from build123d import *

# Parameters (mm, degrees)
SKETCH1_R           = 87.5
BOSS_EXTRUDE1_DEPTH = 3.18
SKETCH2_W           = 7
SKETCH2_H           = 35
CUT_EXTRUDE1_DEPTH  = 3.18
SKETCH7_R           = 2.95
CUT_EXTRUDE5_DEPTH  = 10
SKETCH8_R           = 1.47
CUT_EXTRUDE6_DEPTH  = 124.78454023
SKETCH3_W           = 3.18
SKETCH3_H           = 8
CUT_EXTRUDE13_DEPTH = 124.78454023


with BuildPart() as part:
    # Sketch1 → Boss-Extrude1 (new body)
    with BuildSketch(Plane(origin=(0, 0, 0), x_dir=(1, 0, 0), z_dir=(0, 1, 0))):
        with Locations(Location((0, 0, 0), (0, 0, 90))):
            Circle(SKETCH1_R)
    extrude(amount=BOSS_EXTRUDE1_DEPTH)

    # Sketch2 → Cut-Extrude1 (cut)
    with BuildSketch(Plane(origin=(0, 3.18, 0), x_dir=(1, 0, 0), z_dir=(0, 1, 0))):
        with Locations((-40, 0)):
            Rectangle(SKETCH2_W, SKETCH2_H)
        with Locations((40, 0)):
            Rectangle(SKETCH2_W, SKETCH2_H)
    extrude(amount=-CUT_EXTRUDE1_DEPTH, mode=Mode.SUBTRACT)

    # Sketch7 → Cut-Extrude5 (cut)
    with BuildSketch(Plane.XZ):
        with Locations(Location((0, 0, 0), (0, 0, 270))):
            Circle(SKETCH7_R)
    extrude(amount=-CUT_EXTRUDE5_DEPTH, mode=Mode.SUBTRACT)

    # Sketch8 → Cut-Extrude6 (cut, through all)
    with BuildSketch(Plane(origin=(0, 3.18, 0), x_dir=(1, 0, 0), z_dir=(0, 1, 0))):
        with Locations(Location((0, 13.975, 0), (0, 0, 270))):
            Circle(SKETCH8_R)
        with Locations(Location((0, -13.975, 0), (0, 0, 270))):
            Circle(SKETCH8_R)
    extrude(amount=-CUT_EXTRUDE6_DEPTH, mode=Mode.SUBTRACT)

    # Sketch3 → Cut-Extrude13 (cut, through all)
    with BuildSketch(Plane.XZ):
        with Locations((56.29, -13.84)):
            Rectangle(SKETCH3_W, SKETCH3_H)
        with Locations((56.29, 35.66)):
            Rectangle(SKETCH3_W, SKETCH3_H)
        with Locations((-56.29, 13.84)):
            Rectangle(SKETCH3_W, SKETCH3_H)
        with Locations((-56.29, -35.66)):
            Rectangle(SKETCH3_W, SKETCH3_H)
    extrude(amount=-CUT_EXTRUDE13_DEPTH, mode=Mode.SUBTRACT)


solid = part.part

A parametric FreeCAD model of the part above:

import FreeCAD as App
import Part
import Sketcher
Q = App.Units.Quantity


def add_polygon(sketch, points):
    """Adds a closed chain of lines whose ends are joined by coincident constraints."""
    first, n = sketch.GeometryCount, len(points)
    for a, b in zip(points, points[1:] + points[:1]):
        sketch.addGeometry(Part.LineSegment(App.Vector(*a, 0), App.Vector(*b, 0)), False)
    for i in range(n):
        sketch.addConstraint(Sketcher.Constraint("Coincident", first + i, 2, first + (i + 1) % n, 1))

doc = App.newDocument("Part")
params = doc.addObject("Spreadsheet::Sheet", "Params")
for row, (alias, value) in enumerate([
    ("sketch1_diameter", "175 mm"),
    ("pad1_length", "3.18 mm"),
    ("sketch2_width", "7 mm"),
    ("sketch2_height", "35 mm"),
    ("pocket1_length", "3.18 mm"),
    ("sketch3_diameter", "5.9 mm"),
    ("pocket2_length", "10 mm"),
    ("sketch4_diameter", "2.94 mm"),
    ("sketch5_height", "8 mm"),
    ("sketch5_width", "3.18 mm"),
], start=1):
    params.set(f"A{row}", alias)
    params.set(f"B{row}", "=" + value)
    params.setAlias(f"B{row}", alias)

body = doc.addObject("PartDesign::Body", "Body")

sketch1 = doc.addObject("Sketcher::SketchObject", "Sketch")
body.addObject(sketch1)
sketch1.AttachmentSupport = (doc.XZ_Plane, [""])
sketch1.MapMode = "FlatFace"
sketch1.addGeometry(Part.Circle(App.Vector(0, 0, 0), App.Vector(0, 0, 1), 88), False)
sketch1.addConstraint(Sketcher.Constraint("Coincident", 0, 3, -1, 1))
sketch1.addConstraint(Sketcher.Constraint("Diameter", 0, Q("175 mm")))
sketch1.setExpression("Constraints[1]", "Params.sketch1_diameter")
pad1 = doc.addObject("PartDesign::Pad", "Pad")
body.addObject(pad1)
pad1.Profile = sketch1
pad1.setExpression("Length", "Params.pad1_length")
pad1.Reversed = True

sketch2 = doc.addObject("Sketcher::SketchObject", "Sketch001")
body.addObject(sketch2)
sketch2.AttachmentSupport = (doc.XZ_Plane, [""])
sketch2.MapMode = "FlatFace"
sketch2.AttachmentOffset = App.Placement(App.Vector(0, 0, -3.18), App.Rotation())
add_polygon(sketch2, [(-44, -18), (-44, 18), (-36, 18), (-36, -18)])
add_polygon(sketch2, [(36, -18), (36, 18), (44, 18), (44, -18)])
sketch2.addConstraint(Sketcher.Constraint("Vertical", 0))
sketch2.addConstraint(Sketcher.Constraint("Horizontal", 1))
sketch2.addConstraint(Sketcher.Constraint("Vertical", 2))
sketch2.addConstraint(Sketcher.Constraint("Horizontal", 3))
sketch2.addConstraint(Sketcher.Constraint("Vertical", 4))
sketch2.addConstraint(Sketcher.Constraint("Horizontal", 5))
sketch2.addConstraint(Sketcher.Constraint("Vertical", 6))
sketch2.addConstraint(Sketcher.Constraint("Horizontal", 7))
sketch2.addConstraint(Sketcher.Constraint("Symmetric", 2, 2, 4, 2, -1, 1))
sketch2.addConstraint(Sketcher.Constraint("Symmetric", 0, 2, 6, 2, -1, 1))
sketch2.addConstraint(Sketcher.Constraint("Horizontal", 1, 2, 4, 2))
sketch2.addConstraint(Sketcher.Constraint("DistanceX", 1, 1, 1, 2, Q("7 mm")))
sketch2.addConstraint(Sketcher.Constraint("DistanceY", 0, 1, 0, 2, Q("35 mm")))
sketch2.addConstraint(Sketcher.Constraint("DistanceX", 1, 2, 4, 2, Q("73 mm")))
sketch2.setExpression("Constraints[19]", "Params.sketch2_width")
sketch2.setExpression("Constraints[20]", "Params.sketch2_height")
pocket1 = doc.addObject("PartDesign::Pocket", "Pocket")
body.addObject(pocket1)
pocket1.Profile = sketch2
pocket1.setExpression("Length", "Params.pocket1_length")
pocket1.Reversed = True

sketch3 = doc.addObject("Sketcher::SketchObject", "Sketch002")
body.addObject(sketch3)
sketch3.AttachmentSupport = (doc.XZ_Plane, [""])
sketch3.MapMode = "FlatFace"
sketch3.addGeometry(Part.Circle(App.Vector(0, 0, 0), App.Vector(0, 0, 1), 3), False)
sketch3.addConstraint(Sketcher.Constraint("Coincident", 0, 3, -1, 1))
sketch3.addConstraint(Sketcher.Constraint("Diameter", 0, Q("5.9 mm")))
sketch3.setExpression("Constraints[1]", "Params.sketch3_diameter")
pocket2 = doc.addObject("PartDesign::Pocket", "Pocket001")
body.addObject(pocket2)
pocket2.Profile = sketch3
pocket2.setExpression("Length", "Params.pocket2_length")

sketch4 = doc.addObject("Sketcher::SketchObject", "Sketch003")
body.addObject(sketch4)
sketch4.AttachmentSupport = (doc.XZ_Plane, [""])
sketch4.MapMode = "FlatFace"
sketch4.AttachmentOffset = App.Placement(App.Vector(0, 0, -3.18), App.Rotation())
sketch4.addGeometry(Part.Circle(App.Vector(0, -14, 0), App.Vector(0, 0, 1), 1.5), False)
sketch4.addGeometry(Part.Circle(App.Vector(0, 14, 0), App.Vector(0, 0, 1), 1.5), False)
sketch4.addConstraint(Sketcher.Constraint("Equal", 0, 1))
sketch4.addConstraint(Sketcher.Constraint("Symmetric", 0, 3, 1, 3, -1, 1))
sketch4.addConstraint(Sketcher.Constraint("PointOnObject", 0, 3, -2))
sketch4.addConstraint(Sketcher.Constraint("Diameter", 0, Q("2.94 mm")))
sketch4.addConstraint(Sketcher.Constraint("DistanceY", 0, 3, 1, 3, Q("27.95 mm")))
sketch4.setExpression("Constraints[3]", "Params.sketch4_diameter")
pocket3 = doc.addObject("PartDesign::Pocket", "Pocket002")
body.addObject(pocket3)
pocket3.Profile = sketch4
pocket3.Type = "ThroughAll"
pocket3.Reversed = True

sketch5 = doc.addObject("Sketcher::SketchObject", "Sketch004")
body.addObject(sketch5)
sketch5.AttachmentSupport = (doc.XZ_Plane, [""])
sketch5.MapMode = "FlatFace"
add_polygon(sketch5, [(54.7, -9.8), (54.7, -17.8), (57.9, -17.8), (57.9, -9.8)])
add_polygon(sketch5, [(54.7, 39.7), (54.7, 31.7), (57.9, 31.7), (57.9, 39.7)])
add_polygon(sketch5, [(-57.9, 17.8), (-57.9, 9.8), (-54.7, 9.8), (-54.7, 17.8)])
add_polygon(sketch5, [(-57.9, -31.7), (-57.9, -39.7), (-54.7, -39.7), (-54.7, -31.7)])
sketch5.addConstraint(Sketcher.Constraint("Vertical", 0))
sketch5.addConstraint(Sketcher.Constraint("Horizontal", 1))
sketch5.addConstraint(Sketcher.Constraint("Vertical", 2))
sketch5.addConstraint(Sketcher.Constraint("Horizontal", 3))
sketch5.addConstraint(Sketcher.Constraint("Vertical", 4))
sketch5.addConstraint(Sketcher.Constraint("Horizontal", 5))
sketch5.addConstraint(Sketcher.Constraint("Vertical", 6))
sketch5.addConstraint(Sketcher.Constraint("Horizontal", 7))
sketch5.addConstraint(Sketcher.Constraint("Vertical", 8))
sketch5.addConstraint(Sketcher.Constraint("Horizontal", 9))
sketch5.addConstraint(Sketcher.Constraint("Vertical", 10))
sketch5.addConstraint(Sketcher.Constraint("Horizontal", 11))
sketch5.addConstraint(Sketcher.Constraint("Vertical", 12))
sketch5.addConstraint(Sketcher.Constraint("Horizontal", 13))
sketch5.addConstraint(Sketcher.Constraint("Vertical", 14))
sketch5.addConstraint(Sketcher.Constraint("Horizontal", 15))
sketch5.addConstraint(Sketcher.Constraint("Symmetric", 2, 2, 8, 2, -1, 1))
sketch5.addConstraint(Sketcher.Constraint("Symmetric", 0, 2, 10, 2, -1, 1))
sketch5.addConstraint(Sketcher.Constraint("Symmetric", 6, 2, 12, 2, -1, 1))
sketch5.addConstraint(Sketcher.Constraint("Symmetric", 4, 2, 14, 2, -1, 1))
sketch5.addConstraint(Sketcher.Constraint("Vertical", 3, 2, 4, 2))
sketch5.addConstraint(Sketcher.Constraint("Vertical", 2, 2, 5, 2))
sketch5.addConstraint(Sketcher.Constraint("Equal", 2, 4))
sketch5.addConstraint(Sketcher.Constraint("DistanceY", 0, 2, 0, 1, Q("8 mm")))
sketch5.addConstraint(Sketcher.Constraint("DistanceX", 1, 1, 1, 2, Q("3.18 mm")))
sketch5.addConstraint(Sketcher.Constraint("DistanceX", -1, 1, 0, 2, Q("54.7 mm")))
sketch5.addConstraint(Sketcher.Constraint("DistanceY", 3, 2, 4, 2, Q("41.5 mm")))
sketch5.addConstraint(Sketcher.Constraint("DistanceY", 0, 2, -1, 1, Q("17.84 mm")))
sketch5.setExpression("Constraints[39]", "Params.sketch5_height")
sketch5.setExpression("Constraints[40]", "Params.sketch5_width")
pocket4 = doc.addObject("PartDesign::Pocket", "Pocket003")
body.addObject(pocket4)
pocket4.Profile = sketch5
pocket4.Type = "ThroughAll"

doc.recompute()
